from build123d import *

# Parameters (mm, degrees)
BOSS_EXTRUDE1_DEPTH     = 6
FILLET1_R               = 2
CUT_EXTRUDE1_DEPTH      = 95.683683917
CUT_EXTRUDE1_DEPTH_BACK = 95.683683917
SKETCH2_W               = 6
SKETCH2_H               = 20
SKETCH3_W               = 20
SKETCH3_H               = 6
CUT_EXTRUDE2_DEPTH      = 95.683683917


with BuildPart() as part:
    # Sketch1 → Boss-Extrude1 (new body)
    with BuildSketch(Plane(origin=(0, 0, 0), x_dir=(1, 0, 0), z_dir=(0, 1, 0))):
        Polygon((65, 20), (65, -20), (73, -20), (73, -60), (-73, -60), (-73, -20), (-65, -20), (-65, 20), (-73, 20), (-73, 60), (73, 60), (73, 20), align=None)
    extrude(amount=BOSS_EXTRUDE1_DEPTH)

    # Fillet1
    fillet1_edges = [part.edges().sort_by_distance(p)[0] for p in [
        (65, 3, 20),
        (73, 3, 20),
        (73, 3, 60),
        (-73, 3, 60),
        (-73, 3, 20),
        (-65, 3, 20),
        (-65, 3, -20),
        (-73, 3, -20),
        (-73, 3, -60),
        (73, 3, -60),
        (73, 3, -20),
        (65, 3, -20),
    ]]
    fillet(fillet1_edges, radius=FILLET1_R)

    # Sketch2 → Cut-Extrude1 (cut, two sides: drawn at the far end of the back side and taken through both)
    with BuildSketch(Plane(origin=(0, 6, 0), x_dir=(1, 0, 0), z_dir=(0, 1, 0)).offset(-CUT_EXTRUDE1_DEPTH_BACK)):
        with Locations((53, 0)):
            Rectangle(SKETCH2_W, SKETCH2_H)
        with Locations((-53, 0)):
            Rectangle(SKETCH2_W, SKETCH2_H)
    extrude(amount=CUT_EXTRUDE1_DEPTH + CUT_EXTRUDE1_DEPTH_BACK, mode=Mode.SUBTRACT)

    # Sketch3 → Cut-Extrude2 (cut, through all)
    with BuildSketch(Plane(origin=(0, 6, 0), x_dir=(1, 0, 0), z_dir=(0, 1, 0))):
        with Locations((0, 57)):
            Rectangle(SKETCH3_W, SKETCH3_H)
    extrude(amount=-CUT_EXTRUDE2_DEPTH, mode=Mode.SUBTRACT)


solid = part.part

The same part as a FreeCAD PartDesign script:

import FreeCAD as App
import Part
import Sketcher
from FreeCAD import Vector
Q = App.Units.Quantity


def edges_at(feature, points):
    """Names of the edges that pass closest to the given points."""
    edges = feature.Shape.Edges
    near = lambda p: min(range(len(edges)), key=lambda i: edges[i].distToShape(Part.Vertex(*p))[0])
    return sorted({f"Edge{near(p) + 1}" for p in points})


def add_polygon(sketch, points):
    """Adds a closed chain of lines whose ends are joined by coincident constraints."""
    first, n = sketch.GeometryCount, len(points)
    for a, b in zip(points, points[1:] + points[:1]):
        sketch.addGeometry(Part.LineSegment(App.Vector(*a, 0), App.Vector(*b, 0)), False)
    for i in range(n):
        sketch.addConstraint(Sketcher.Constraint("Coincident", first + i, 2, first + (i + 1) % n, 1))

doc = App.newDocument("Part")
body = doc.addObject("PartDesign::Body", "Body")

# Sketch on XZ plane
sketch1 = body.newObject("Sketcher::SketchObject", "Sketch")
sketch1.AttachmentSupport = (doc.getObject("XZ_Plane"), [""])
sketch1.MapMode = "FlatFace"
add_polygon(sketch1, [(65, 20), (65, -20), (73, -20), (73, -60), (-73, -60), (-73, -20), (-65, -20), (-65, 20), (-73, 20), (-73, 60), (73, 60), (73, 20)])  # lines 0-11
sketch1.addConstraint(Sketcher.Constraint("Vertical", 0))
sketch1.addConstraint(Sketcher.Constraint("Horizontal", 1))
sketch1.addConstraint(Sketcher.Constraint("Vertical", 2))
sketch1.addConstraint(Sketcher.Constraint("Horizontal", 3))
sketch1.addConstraint(Sketcher.Constraint("Vertical", 4))
sketch1.addConstraint(Sketcher.Constraint("Horizontal", 5))
sketch1.addConstraint(Sketcher.Constraint("Vertical", 6))
sketch1.addConstraint(Sketcher.Constraint("Horizontal", 7))
sketch1.addConstraint(Sketcher.Constraint("Vertical", 8))
sketch1.addConstraint(Sketcher.Constraint("Horizontal", 9))
sketch1.addConstraint(Sketcher.Constraint("Vertical", 10))
sketch1.addConstraint(Sketcher.Constraint("Horizontal", 11))
sketch1.addConstraint(Sketcher.Constraint("Symmetric", 0, 2, 6, 2, -1, 1))
sketch1.addConstraint(Sketcher.Constraint("Symmetric", 2, 2, 8, 2, -1, 1))
sketch1.addConstraint(Sketcher.Constraint("Symmetric", 4, 2, 10, 2, -1, 1))
sketch1.addConstraint(Sketcher.Constraint("Symmetric", 1, 2, 4, 2, -2))
sketch1.addConstraint(Sketcher.Constraint("Equal", 0, 2))
sketch1.addConstraint(Sketcher.Constraint("DistanceX", 1, 1, 1, 2, Q("8 mm")))
sketch1.addConstraint(Sketcher.Constraint("DistanceX", 3, 2, 3, 1, Q("146 mm")))
sketch1.addConstraint(Sketcher.Constraint("DistanceY", 0, 2, 0, 1, Q("40 mm")))
pad1 = body.newObject("PartDesign::Pad", "Pad")
pad1.Profile = sketch1
pad1.Length = 6
pad1.Reversed = True
doc.recompute()

fillet = body.newObject("PartDesign::Fillet", "Fillet")
fillet.Base = (pad1, edges_at(pad1, [
    (65, 3, 20),
    (73, 3, 20),
    (73, 3, 60),
    (-73, 3, 60),
    (-73, 3, 20),
    (-65, 3, 20),
    (-65, 3, -20),
    (-73, 3, -20),
    (-73, 3, -60),
    (73, 3, -60),
    (73, 3, -20),
    (65, 3, -20),
]))
fillet.Radius = 2

# Sketch on XZ plane
sketch2 = body.newObject("Sketcher::SketchObject", "Sketch001")
sketch2.AttachmentSupport = (doc.getObject("XZ_Plane"), [""])
sketch2.MapMode = "FlatFace"
sketch2.AttachmentOffset = App.Placement(Vector(0, 0, -6), App.Rotation())
add_polygon(sketch2, [(50, -10), (50, 10), (56, 10), (56, -10)])  # lines 0-3
add_polygon(sketch2, [(-56, -10), (-56, 10), (-50, 10), (-50, -10)])  # lines 4-7
sketch2.addConstraint(Sketcher.Constraint("Vertical", 0))
sketch2.addConstraint(Sketcher.Constraint("Horizontal", 1))
sketch2.addConstraint(Sketcher.Constraint("Vertical", 2))
sketch2.addConstraint(Sketcher.Constraint("Horizontal", 3))
sketch2.addConstraint(Sketcher.Constraint("Vertical", 4))
sketch2.addConstraint(Sketcher.Constraint("Horizontal", 5))
sketch2.addConstraint(Sketcher.Constraint("Vertical", 6))
sketch2.addConstraint(Sketcher.Constraint("Horizontal", 7))
sketch2.addConstraint(Sketcher.Constraint("Symmetric", 2, 2, 4, 2, -1, 1))
sketch2.addConstraint(Sketcher.Constraint("Symmetric", 0, 2, 6, 2, -1, 1))
sketch2.addConstraint(Sketcher.Constraint("Horizontal", 1, 2, 4, 2))
sketch2.addConstraint(Sketcher.Constraint("DistanceX", 1, 1, 1, 2, Q("6 mm")))
sketch2.addConstraint(Sketcher.Constraint("DistanceY", 0, 1, 0, 2, Q("20 mm")))
sketch2.addConstraint(Sketcher.Constraint("DistanceX", -1, 1, 0, 2, Q("50 mm")))
pocket1 = body.newObject("PartDesign::Pocket", "Pocket")
pocket1.Profile = sketch2
pocket1.Type = "ThroughAll"
pocket1.Midplane = True

# Sketch on XZ plane
sketch3 = body.newObject("Sketcher::SketchObject", "Sketch002")
sketch3.AttachmentSupport = (doc.getObject("XZ_Plane"), [""])
sketch3.MapMode = "FlatFace"
sketch3.AttachmentOffset = App.Placement(Vector(0, 0, -6), App.Rotation())
add_polygon(sketch3, [(-10, -60), (-10, -54), (10, -54), (10, -60)])  # lines 0-3
sketch3.addConstraint(Sketcher.Constraint("Vertical", 0))
sketch3.addConstraint(Sketcher.Constraint("Horizontal", 1))
sketch3.addConstraint(Sketcher.Constraint("Vertical", 2))
sketch3.addConstraint(Sketcher.Constraint("Horizontal", 3))
sketch3.addConstraint(Sketcher.Constraint("DistanceX", 1, 1, 1, 2, Q("20 mm")))
sketch3.addConstraint(Sketcher.Constraint("DistanceY", 0, 1, 0, 2, Q("6 mm")))
sketch3.addConstraint(Sketcher.Constraint("DistanceX", 0, 2, -1, 1, Q("10 mm")))
sketch3.addConstraint(Sketcher.Constraint("DistanceY", 0, 2, -1, 1, Q("54 mm")))
pocket2 = body.newObject("PartDesign::Pocket", "Pocket001")
pocket2.Profile = sketch3
pocket2.Type = "ThroughAll"
pocket2.Reversed = True

doc.recompute()
